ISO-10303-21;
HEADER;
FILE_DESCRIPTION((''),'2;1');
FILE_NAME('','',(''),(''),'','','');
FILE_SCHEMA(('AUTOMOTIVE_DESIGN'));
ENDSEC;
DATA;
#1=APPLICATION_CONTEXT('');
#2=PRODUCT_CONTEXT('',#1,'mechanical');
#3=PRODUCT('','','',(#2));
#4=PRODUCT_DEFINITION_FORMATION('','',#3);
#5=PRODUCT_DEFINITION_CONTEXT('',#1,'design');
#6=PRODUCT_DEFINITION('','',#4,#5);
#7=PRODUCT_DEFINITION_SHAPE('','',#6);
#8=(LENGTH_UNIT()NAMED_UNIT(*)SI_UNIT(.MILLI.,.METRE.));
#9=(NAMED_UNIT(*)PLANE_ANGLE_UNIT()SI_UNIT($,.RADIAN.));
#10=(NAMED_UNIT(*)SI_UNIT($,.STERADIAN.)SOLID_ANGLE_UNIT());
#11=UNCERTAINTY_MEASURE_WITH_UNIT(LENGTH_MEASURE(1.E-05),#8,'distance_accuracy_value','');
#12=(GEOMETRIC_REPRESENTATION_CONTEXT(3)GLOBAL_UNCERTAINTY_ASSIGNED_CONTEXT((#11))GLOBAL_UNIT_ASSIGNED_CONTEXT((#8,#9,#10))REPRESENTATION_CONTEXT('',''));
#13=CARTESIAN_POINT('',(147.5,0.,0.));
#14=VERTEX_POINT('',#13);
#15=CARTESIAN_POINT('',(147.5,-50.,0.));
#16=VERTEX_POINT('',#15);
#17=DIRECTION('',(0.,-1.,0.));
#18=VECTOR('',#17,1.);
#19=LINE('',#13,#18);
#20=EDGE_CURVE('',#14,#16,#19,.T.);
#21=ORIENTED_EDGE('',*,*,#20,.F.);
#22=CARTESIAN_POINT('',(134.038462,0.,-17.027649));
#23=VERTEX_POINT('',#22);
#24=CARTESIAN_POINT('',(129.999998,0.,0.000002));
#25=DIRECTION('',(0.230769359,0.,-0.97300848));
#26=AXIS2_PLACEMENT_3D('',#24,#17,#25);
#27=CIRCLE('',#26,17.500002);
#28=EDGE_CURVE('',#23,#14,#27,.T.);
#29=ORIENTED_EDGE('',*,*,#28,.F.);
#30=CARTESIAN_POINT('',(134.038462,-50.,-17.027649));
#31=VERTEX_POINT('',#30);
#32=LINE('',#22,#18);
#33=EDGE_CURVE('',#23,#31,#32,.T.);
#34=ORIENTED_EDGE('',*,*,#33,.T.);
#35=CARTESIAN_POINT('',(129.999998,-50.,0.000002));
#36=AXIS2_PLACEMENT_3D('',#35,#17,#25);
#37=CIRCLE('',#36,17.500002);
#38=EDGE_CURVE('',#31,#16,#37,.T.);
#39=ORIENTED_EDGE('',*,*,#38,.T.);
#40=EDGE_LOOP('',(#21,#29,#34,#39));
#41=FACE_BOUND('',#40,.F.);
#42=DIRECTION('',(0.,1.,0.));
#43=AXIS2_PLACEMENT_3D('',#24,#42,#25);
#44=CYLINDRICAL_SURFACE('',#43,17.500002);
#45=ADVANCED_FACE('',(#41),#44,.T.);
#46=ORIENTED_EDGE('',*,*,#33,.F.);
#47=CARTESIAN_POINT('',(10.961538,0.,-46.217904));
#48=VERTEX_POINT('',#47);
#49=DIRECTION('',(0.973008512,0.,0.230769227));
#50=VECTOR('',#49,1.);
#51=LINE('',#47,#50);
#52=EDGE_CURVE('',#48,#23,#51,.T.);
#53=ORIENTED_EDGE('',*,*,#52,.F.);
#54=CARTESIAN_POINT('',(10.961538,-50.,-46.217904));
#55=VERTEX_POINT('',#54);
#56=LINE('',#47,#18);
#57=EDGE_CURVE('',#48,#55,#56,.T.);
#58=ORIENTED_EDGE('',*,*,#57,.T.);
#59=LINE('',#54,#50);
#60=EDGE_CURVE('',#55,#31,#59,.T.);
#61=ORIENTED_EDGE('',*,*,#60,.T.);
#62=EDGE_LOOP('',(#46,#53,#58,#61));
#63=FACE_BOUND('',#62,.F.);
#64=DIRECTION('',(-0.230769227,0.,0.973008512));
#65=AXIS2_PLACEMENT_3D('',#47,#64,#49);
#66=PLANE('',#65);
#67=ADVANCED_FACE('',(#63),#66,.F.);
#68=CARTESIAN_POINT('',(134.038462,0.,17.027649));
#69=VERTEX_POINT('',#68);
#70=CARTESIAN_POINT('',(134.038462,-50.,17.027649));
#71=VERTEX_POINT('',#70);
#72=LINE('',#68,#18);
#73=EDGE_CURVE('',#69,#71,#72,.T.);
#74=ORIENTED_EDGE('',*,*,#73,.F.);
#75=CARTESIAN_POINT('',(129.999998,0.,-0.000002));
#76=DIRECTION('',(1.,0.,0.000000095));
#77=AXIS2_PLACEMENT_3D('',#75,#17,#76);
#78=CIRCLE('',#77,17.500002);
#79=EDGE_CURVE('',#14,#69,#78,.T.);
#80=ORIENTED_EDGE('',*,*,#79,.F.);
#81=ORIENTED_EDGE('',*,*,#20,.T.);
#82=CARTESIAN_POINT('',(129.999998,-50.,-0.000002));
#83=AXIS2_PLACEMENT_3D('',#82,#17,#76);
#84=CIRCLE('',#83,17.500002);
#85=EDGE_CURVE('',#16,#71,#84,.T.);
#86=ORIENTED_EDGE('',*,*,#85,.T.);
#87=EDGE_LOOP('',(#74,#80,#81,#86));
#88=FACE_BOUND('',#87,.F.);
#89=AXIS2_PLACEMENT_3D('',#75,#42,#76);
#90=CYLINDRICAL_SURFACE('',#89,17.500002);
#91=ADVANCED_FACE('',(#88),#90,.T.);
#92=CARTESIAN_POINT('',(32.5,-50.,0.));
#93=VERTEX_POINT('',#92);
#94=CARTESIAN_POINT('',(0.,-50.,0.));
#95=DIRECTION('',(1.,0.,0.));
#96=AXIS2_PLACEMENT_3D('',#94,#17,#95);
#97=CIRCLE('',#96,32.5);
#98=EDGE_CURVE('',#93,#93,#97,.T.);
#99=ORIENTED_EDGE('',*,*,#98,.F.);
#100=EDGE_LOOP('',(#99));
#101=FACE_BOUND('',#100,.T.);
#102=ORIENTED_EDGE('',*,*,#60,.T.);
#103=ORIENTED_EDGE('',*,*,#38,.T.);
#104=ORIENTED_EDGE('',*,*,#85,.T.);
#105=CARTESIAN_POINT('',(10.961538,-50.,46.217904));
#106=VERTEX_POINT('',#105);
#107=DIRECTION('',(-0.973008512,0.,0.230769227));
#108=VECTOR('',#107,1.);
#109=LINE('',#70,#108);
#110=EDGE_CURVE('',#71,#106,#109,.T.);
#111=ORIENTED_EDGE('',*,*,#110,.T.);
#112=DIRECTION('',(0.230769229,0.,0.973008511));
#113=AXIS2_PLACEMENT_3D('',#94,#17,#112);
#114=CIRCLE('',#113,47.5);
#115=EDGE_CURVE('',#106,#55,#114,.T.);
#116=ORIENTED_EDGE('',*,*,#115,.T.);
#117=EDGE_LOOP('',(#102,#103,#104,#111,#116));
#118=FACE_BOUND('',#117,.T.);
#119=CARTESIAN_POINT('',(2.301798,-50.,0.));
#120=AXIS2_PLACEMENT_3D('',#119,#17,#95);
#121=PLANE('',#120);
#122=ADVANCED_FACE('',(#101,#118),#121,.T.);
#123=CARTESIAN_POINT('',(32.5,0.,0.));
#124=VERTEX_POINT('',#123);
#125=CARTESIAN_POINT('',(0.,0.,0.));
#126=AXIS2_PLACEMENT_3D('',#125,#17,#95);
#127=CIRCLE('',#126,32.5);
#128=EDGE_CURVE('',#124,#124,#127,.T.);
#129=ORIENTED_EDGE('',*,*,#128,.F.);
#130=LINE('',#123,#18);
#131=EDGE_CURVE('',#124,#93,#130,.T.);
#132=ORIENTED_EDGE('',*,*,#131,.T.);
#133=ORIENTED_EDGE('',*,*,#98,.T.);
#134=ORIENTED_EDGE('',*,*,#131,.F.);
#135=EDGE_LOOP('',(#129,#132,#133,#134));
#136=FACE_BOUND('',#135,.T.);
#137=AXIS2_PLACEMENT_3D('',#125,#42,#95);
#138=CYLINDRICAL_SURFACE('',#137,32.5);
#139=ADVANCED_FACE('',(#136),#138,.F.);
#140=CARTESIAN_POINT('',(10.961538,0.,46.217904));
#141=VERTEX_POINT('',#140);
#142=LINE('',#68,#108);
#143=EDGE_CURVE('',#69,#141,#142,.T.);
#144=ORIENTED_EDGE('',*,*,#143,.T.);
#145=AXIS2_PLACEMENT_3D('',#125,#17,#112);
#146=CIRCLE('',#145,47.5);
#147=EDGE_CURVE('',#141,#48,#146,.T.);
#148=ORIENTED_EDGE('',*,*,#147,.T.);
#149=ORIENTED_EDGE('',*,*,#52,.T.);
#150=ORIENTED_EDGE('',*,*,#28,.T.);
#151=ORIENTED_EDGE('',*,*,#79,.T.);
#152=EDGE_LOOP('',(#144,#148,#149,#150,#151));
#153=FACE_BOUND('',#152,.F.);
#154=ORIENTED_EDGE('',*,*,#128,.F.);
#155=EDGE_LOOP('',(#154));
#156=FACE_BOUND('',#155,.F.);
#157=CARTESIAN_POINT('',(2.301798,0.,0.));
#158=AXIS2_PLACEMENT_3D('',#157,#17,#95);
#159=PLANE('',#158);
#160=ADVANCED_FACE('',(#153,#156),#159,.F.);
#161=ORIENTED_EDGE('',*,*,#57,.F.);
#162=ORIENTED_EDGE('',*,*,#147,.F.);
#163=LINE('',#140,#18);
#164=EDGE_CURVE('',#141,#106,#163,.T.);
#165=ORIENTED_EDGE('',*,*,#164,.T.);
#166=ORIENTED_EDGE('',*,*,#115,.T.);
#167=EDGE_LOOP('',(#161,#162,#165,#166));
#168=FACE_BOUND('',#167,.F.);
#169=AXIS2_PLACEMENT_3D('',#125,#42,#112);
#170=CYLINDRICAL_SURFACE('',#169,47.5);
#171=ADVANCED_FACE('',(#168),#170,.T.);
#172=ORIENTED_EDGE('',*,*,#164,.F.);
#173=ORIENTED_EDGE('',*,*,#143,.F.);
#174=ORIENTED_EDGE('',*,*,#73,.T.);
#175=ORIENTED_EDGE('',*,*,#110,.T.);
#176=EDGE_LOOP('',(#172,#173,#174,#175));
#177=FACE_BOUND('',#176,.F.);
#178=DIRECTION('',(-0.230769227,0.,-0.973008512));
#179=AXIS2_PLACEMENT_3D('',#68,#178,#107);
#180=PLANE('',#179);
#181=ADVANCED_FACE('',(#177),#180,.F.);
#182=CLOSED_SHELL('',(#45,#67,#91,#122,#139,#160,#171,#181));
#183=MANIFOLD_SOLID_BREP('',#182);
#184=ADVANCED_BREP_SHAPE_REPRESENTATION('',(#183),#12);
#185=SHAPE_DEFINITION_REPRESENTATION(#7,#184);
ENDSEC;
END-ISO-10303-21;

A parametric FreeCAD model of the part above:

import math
import FreeCAD as App
import Part
import Sketcher
from FreeCAD import Vector

doc = App.newDocument("Part")
body = doc.addObject("PartDesign::Body", "Body")

# Sketch on XZ plane
sketch1 = doc.addObject("Sketcher::SketchObject", "Sketch")
body.addObject(sketch1)
sketch1.AttachmentSupport = (doc.XZ_Plane, [""])
sketch1.MapMode = "FlatFace"
sketch1.addGeometry([
    Part.ArcOfCircle(Part.Circle(Vector(0, 0, 0), Vector(0, 0, 1), 47.5), math.radians(76.657636), math.radians(283.342364)),  # 0
    Part.LineSegment(Vector(10.961538, -46.217904, 0), Vector(134.038462, -17.027649, 0)),  # 1
    Part.ArcOfCircle(Part.Circle(Vector(129.999998, 0.000002, 0), Vector(0, 0, 1), 17.500002), math.radians(-76.657629), math.radians(-0.000005)),  # 2
    Part.ArcOfCircle(Part.Circle(Vector(129.999998, -0.000002, 0), Vector(0, 0, 1), 17.500002), math.radians(0.000005), math.radians(76.657629)),  # 3
    Part.LineSegment(Vector(134.038462, 17.027649, 0), Vector(10.961538, 46.217904, 0)),  # 4
    Part.Circle(Vector(0, 0, 0), Vector(0, 0, 1), 32.5),  # 5
], False)
sketch1.addConstraint([
    Sketcher.Constraint("Tangent", 0, 2, 1, 1),
    Sketcher.Constraint("Tangent", 1, 2, 2, 1),
    Sketcher.Constraint("Tangent", 2, 2, 3, 1),
    Sketcher.Constraint("Tangent", 3, 2, 4, 1),
    Sketcher.Constraint("Tangent", 4, 2, 0, 1),
    Sketcher.Constraint("Coincident", 0, 3, -1, 1),
    Sketcher.Constraint("Coincident", 5, 3, -1, 1),
    Sketcher.Constraint("Equal", 2, 3),
    Sketcher.Constraint("PointOnObject", 2, 3, -1),
    Sketcher.Constraint("PointOnObject", 2, 2, -1),
    Sketcher.Constraint("Diameter", 5, 65.0),
    Sketcher.Constraint("Radius", 0, 47.5),
    Sketcher.Constraint("DistanceX", -1, 1, 2, 2, 147.5),
    Sketcher.Constraint("Radius", 2, 17.500002),
])
pad1 = doc.addObject("PartDesign::Pad", "Pad")
body.addObject(pad1)
pad1.Profile = sketch1
pad1.Length = 50

doc.recompute()
